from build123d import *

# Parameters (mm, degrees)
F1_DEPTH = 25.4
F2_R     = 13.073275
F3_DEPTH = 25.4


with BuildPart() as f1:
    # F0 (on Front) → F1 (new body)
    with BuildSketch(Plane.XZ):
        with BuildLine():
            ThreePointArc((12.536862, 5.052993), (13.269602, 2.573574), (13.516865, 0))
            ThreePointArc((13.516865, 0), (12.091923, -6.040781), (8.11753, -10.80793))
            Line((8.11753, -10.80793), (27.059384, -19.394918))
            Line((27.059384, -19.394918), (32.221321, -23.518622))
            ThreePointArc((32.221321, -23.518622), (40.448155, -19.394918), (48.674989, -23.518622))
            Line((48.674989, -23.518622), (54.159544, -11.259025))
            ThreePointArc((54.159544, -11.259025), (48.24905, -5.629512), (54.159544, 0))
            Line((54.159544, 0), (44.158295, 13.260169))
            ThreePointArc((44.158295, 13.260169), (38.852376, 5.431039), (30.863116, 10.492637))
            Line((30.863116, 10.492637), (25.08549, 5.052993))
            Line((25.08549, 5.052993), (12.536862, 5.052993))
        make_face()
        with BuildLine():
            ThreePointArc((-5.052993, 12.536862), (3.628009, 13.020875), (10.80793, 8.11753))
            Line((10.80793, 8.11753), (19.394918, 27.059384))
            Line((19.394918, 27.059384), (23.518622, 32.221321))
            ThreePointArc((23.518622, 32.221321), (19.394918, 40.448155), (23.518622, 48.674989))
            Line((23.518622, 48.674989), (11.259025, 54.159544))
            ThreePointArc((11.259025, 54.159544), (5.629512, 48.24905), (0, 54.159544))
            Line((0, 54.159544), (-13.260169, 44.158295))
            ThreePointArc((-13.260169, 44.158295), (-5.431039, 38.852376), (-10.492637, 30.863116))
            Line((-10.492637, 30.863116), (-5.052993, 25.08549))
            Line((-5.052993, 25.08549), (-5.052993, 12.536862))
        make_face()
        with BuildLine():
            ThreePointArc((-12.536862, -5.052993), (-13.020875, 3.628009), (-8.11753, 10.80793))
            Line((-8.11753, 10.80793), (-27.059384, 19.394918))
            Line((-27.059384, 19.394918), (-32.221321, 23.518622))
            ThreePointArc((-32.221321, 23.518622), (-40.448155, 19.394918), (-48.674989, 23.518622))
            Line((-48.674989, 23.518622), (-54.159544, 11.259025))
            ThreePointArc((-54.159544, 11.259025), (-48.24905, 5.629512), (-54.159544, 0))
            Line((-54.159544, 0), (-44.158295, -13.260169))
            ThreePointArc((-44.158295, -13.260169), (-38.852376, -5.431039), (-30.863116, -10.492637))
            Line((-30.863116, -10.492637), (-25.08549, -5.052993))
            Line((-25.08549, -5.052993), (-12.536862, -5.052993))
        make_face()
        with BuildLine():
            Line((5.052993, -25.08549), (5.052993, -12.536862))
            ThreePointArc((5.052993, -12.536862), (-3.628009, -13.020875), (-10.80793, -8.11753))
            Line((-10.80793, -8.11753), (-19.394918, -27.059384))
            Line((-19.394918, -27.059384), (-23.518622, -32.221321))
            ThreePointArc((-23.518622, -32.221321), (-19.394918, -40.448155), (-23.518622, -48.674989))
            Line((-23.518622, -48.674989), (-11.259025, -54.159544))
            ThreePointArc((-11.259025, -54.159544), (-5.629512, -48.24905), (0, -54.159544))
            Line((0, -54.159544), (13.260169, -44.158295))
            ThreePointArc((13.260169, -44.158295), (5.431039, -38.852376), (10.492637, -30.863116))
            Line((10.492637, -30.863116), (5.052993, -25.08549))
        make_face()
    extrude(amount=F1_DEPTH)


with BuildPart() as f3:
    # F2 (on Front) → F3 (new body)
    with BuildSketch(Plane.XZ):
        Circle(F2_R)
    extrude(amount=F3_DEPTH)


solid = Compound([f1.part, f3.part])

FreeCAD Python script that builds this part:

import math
import FreeCAD as App
import Part
import Sketcher
Q = App.Units.Quantity

doc = App.newDocument("Part")
body = doc.addObject("PartDesign::Body", "Body")
body.AllowCompound = True

# Sketch on XZ plane
sketch1 = body.newObject("Sketcher::SketchObject", "Sketch")
sketch1.AttachmentSupport = (doc.getObject("XZ_Plane"), [""])
sketch1.MapMode = "FlatFace"
sketch1.addGeometry([
    Part.ArcOfCircle(Part.Circle(App.Vector(-0.000046, -0.000008, 0), App.Vector(0, 0, 1), 13.516911), math.radians(0.000034), math.radians(21.951901)),  # 0
    Part.ArcOfCircle(Part.Circle(App.Vector(-0.000002, 0.000001, 0), App.Vector(0, 0, 1), 13.516867), math.radians(-53.090821), math.radians(-0.000002)),  # 1
    Part.LineSegment(App.Vector(8.11753, -10.80793, 0), App.Vector(27.059384, -19.394918, 0)),  # 2
    Part.LineSegment(App.Vector(27.059384, -19.394918, 0), App.Vector(32.221321, -23.518622, 0)),  # 3
    Part.ArcOfCircle(Part.Circle(App.Vector(40.448155, -29.663081, 0), App.Vector(0, 0, 1), 10.268163), math.radians(36.755325), math.radians(143.244675)),  # 4
    Part.LineSegment(App.Vector(48.674989, -23.518622, 0), App.Vector(54.159544, -11.259025, 0)),  # 5
    Part.ArcOfCircle(Part.Circle(App.Vector(53.885241, -5.629512, 0), App.Vector(0, 0, 1), 5.636191), math.radians(87.210422), math.radians(272.789578)),  # 6
    Part.LineSegment(App.Vector(54.159544, 0, 0), App.Vector(44.158295, 13.260169, 0)),  # 7
    Part.ArcOfCircle(Part.Circle(App.Vector(37.46795, 12.081801, 0), App.Vector(0, 0, 1), 6.793325), math.radians(-166.47143), math.radians(9.989033)),  # 8
    Part.LineSegment(App.Vector(30.863116, 10.492637, 0), App.Vector(25.08549, 5.052993, 0)),  # 9
    Part.LineSegment(App.Vector(25.08549, 5.052993, 0), App.Vector(12.536862, 5.052993, 0)),  # 10
    Part.ArcOfCircle(Part.Circle(App.Vector(-0.000001, -0.000002, 0), App.Vector(0, 0, 1), 13.516867), math.radians(36.909179), math.radians(111.951936)),  # 11
    Part.LineSegment(App.Vector(10.80793, 8.11753, 0), App.Vector(19.394918, 27.059384, 0)),  # 12
    Part.LineSegment(App.Vector(19.394918, 27.059384, 0), App.Vector(23.518622, 32.221321, 0)),  # 13
    Part.ArcOfCircle(Part.Circle(App.Vector(29.663081, 40.448155, 0), App.Vector(0, 0, 1), 10.268163), math.radians(126.755325), math.radians(233.244675)),  # 14
    Part.LineSegment(App.Vector(23.518622, 48.674989, 0), App.Vector(11.259025, 54.159544, 0)),  # 15
    Part.ArcOfCircle(Part.Circle(App.Vector(5.629512, 53.885241, 0), App.Vector(0, 0, 1), 5.636191), math.radians(177.210422), math.radians(362.789578)),  # 16
    Part.LineSegment(App.Vector(0, 54.159544, 0), App.Vector(-13.260169, 44.158295, 0)),  # 17
    Part.ArcOfCircle(Part.Circle(App.Vector(-12.081801, 37.46795, 0), App.Vector(0, 0, 1), 6.793325), math.radians(-76.47143), math.radians(99.989033)),  # 18
    Part.LineSegment(App.Vector(-10.492637, 30.863116, 0), App.Vector(-5.052993, 25.08549, 0)),  # 19
    Part.LineSegment(App.Vector(-5.052993, 25.08549, 0), App.Vector(-5.052993, 12.536862, 0)),  # 20
    Part.ArcOfCircle(Part.Circle(App.Vector(0.000002, -0.000001, 0), App.Vector(0, 0, 1), 13.516867), math.radians(126.909179), math.radians(201.951936)),  # 21
    Part.LineSegment(App.Vector(-8.11753, 10.80793, 0), App.Vector(-27.059384, 19.394918, 0)),  # 22
    Part.LineSegment(App.Vector(-27.059384, 19.394918, 0), App.Vector(-32.221321, 23.518622, 0)),  # 23
    Part.ArcOfCircle(Part.Circle(App.Vector(-40.448155, 29.663081, 0), App.Vector(0, 0, 1), 10.268163), math.radians(-143.244675), math.radians(-36.755325)),  # 24
    Part.LineSegment(App.Vector(-48.674989, 23.518622, 0), App.Vector(-54.159544, 11.259025, 0)),  # 25
    Part.ArcOfCircle(Part.Circle(App.Vector(-53.885241, 5.629512, 0), App.Vector(0, 0, 1), 5.636191), math.radians(-92.789578), math.radians(92.789578)),  # 26
    Part.LineSegment(App.Vector(-54.159544, 0, 0), App.Vector(-44.158295, -13.260169, 0)),  # 27
    Part.ArcOfCircle(Part.Circle(App.Vector(-37.46795, -12.081801, 0), App.Vector(0, 0, 1), 6.793325), math.radians(13.52857), math.radians(189.989033)),  # 28
    Part.LineSegment(App.Vector(-30.863116, -10.492637, 0), App.Vector(-25.08549, -5.052993, 0)),  # 29
    Part.LineSegment(App.Vector(-25.08549, -5.052993, 0), App.Vector(-12.536862, -5.052993, 0)),  # 30
    Part.LineSegment(App.Vector(5.052993, -25.08549, 0), App.Vector(5.052993, -12.536862, 0)),  # 31
    Part.ArcOfCircle(Part.Circle(App.Vector(0.000001, 0.000002, 0), App.Vector(0, 0, 1), 13.516867), math.radians(-143.090821), math.radians(-68.048064)),  # 32
    Part.LineSegment(App.Vector(-10.80793, -8.11753, 0), App.Vector(-19.394918, -27.059384, 0)),  # 33
    Part.LineSegment(App.Vector(-19.394918, -27.059384, 0), App.Vector(-23.518622, -32.221321, 0)),  # 34
    Part.ArcOfCircle(Part.Circle(App.Vector(-29.663081, -40.448155, 0), App.Vector(0, 0, 1), 10.268163), math.radians(-53.244675), math.radians(53.244675)),  # 35
    Part.LineSegment(App.Vector(-23.518622, -48.674989, 0), App.Vector(-11.259025, -54.159544, 0)),  # 36
    Part.ArcOfCircle(Part.Circle(App.Vector(-5.629512, -53.885241, 0), App.Vector(0, 0, 1), 5.636191), math.radians(-2.789578), math.radians(182.789578)),  # 37
    Part.LineSegment(App.Vector(0, -54.159544, 0), App.Vector(13.260169, -44.158295, 0)),  # 38
    Part.ArcOfCircle(Part.Circle(App.Vector(12.081801, -37.46795, 0), App.Vector(0, 0, 1), 6.793325), math.radians(103.52857), math.radians(279.989033)),  # 39
    Part.LineSegment(App.Vector(10.492637, -30.863116, 0), App.Vector(5.052993, -25.08549, 0)),  # 40
], False)
sketch1.addConstraint([
    Sketcher.Constraint("Coincident", 0, 1, 1, 2),
    Sketcher.Constraint("Coincident", 1, 1, 2, 1),
    Sketcher.Constraint("Coincident", 2, 2, 3, 1),
    Sketcher.Constraint("Coincident", 3, 2, 4, 2),
    Sketcher.Constraint("Coincident", 4, 1, 5, 1),
    Sketcher.Constraint("Coincident", 5, 2, 6, 2),
    Sketcher.Constraint("Coincident", 6, 1, 7, 1),
    Sketcher.Constraint("Coincident", 7, 2, 8, 2),
    Sketcher.Constraint("Coincident", 8, 1, 9, 1),
    Sketcher.Constraint("Coincident", 9, 2, 10, 1),
    Sketcher.Constraint("Coincident", 10, 2, 0, 2),
    Sketcher.Constraint("Coincident", 11, 1, 12, 1),
    Sketcher.Constraint("Coincident", 12, 2, 13, 1),
    Sketcher.Constraint("Coincident", 13, 2, 14, 2),
    Sketcher.Constraint("Coincident", 14, 1, 15, 1),
    Sketcher.Constraint("Coincident", 15, 2, 16, 2),
    Sketcher.Constraint("Coincident", 16, 1, 17, 1),
    Sketcher.Constraint("Coincident", 17, 2, 18, 2),
    Sketcher.Constraint("Coincident", 18, 1, 19, 1),
    Sketcher.Constraint("Coincident", 19, 2, 20, 1),
    Sketcher.Constraint("Coincident", 20, 2, 11, 2),
    Sketcher.Constraint("Coincident", 21, 1, 22, 1),
    Sketcher.Constraint("Coincident", 22, 2, 23, 1),
    Sketcher.Constraint("Coincident", 23, 2, 24, 2),
    Sketcher.Constraint("Coincident", 24, 1, 25, 1),
    Sketcher.Constraint("Coincident", 25, 2, 26, 2),
    Sketcher.Constraint("Coincident", 26, 1, 27, 1),
    Sketcher.Constraint("Coincident", 27, 2, 28, 2),
    Sketcher.Constraint("Coincident", 28, 1, 29, 1),
    Sketcher.Constraint("Coincident", 29, 2, 30, 1),
    Sketcher.Constraint("Coincident", 30, 2, 21, 2),
    Sketcher.Constraint("Coincident", 31, 2, 32, 2),
    Sketcher.Constraint("Coincident", 32, 1, 33, 1),
    Sketcher.Constraint("Coincident", 33, 2, 34, 1),
    Sketcher.Constraint("Coincident", 34, 2, 35, 2),
    Sketcher.Constraint("Coincident", 35, 1, 36, 1),
    Sketcher.Constraint("Coincident", 36, 2, 37, 2),
    Sketcher.Constraint("Coincident", 37, 1, 38, 1),
    Sketcher.Constraint("Coincident", 38, 2, 39, 2),
    Sketcher.Constraint("Coincident", 39, 1, 40, 1),
    Sketcher.Constraint("Coincident", 40, 2, 31, 1),
    Sketcher.Constraint("Horizontal", 10),
    Sketcher.Constraint("Vertical", 20),
    Sketcher.Constraint("Horizontal", 30),
    Sketcher.Constraint("Vertical", 31),
    Sketcher.Constraint("Coincident", 1, 3, -1, 1),
    Sketcher.Constraint("Coincident", 11, 3, -1, 1),
    Sketcher.Constraint("Coincident", 21, 3, -1, 1),
    Sketcher.Constraint("Coincident", 32, 3, -1, 1),
    Sketcher.Constraint("PointOnObject", 0, 1, -1),
    Sketcher.Constraint("PointOnObject", 6, 1, -1),
    Sketcher.Constraint("PointOnObject", 16, 1, -2),
    Sketcher.Constraint("PointOnObject", 26, 1, -1),
    Sketcher.Constraint("PointOnObject", 37, 1, -2),
    Sketcher.Constraint("Radius", 0, Q("13.516911 mm")),
    Sketcher.Constraint("Radius", 6, Q("5.636191 mm")),
    Sketcher.Constraint("Radius", 16, Q("5.636191 mm")),
    Sketcher.Constraint("Radius", 26, Q("5.636191 mm")),
    Sketcher.Constraint("Radius", 37, Q("5.636191 mm")),
    Sketcher.Constraint("Radius", 1, Q("13.516867 mm")),
    Sketcher.Constraint("Radius", 4, Q("10.268163 mm")),
    Sketcher.Constraint("Radius", 8, Q("6.793325 mm")),
    Sketcher.Constraint("Radius", 11, Q("13.516867 mm")),
    Sketcher.Constraint("Radius", 14, Q("10.268163 mm")),
    Sketcher.Constraint("Radius", 18, Q("6.793325 mm")),
    Sketcher.Constraint("Radius", 21, Q("13.516867 mm")),
    Sketcher.Constraint("Radius", 24, Q("10.268163 mm")),
    Sketcher.Constraint("Radius", 28, Q("6.793325 mm")),
    Sketcher.Constraint("Radius", 32, Q("13.516867 mm")),
    Sketcher.Constraint("Radius", 35, Q("10.268163 mm")),
    Sketcher.Constraint("Radius", 39, Q("6.793325 mm")),
    Sketcher.Constraint("DistanceX", 10, 2, 10, 1, Q("12.548628 mm")),
    Sketcher.Constraint("DistanceX", 30, 1, 30, 2, Q("12.548628 mm")),
    Sketcher.Constraint("DistanceY", 20, 2, 20, 1, Q("12.548628 mm")),
    Sketcher.Constraint("DistanceY", 31, 1, 31, 2, Q("12.548628 mm")),
    Sketcher.Constraint("DistanceY", -1, 1, 8, 3, Q("12.081801 mm")),
    Sketcher.Constraint("DistanceX", 18, 3, -1, 1, Q("12.081801 mm")),
    Sketcher.Constraint("DistanceY", 28, 3, -1, 1, Q("12.081801 mm")),
    Sketcher.Constraint("DistanceX", -1, 1, 39, 3, Q("12.081801 mm")),
    Sketcher.Constraint("DistanceX", 0, 3, 4, 3, Q("40.448201 mm")),
    Sketcher.Constraint("Distance", 2, Q("20.79736 mm")),
    Sketcher.Constraint("Distance", 5, Q("13.43049 mm")),
    Sketcher.Constraint("Distance", 12, Q("20.79736 mm")),
    Sketcher.Constraint("Distance", 15, Q("13.43049 mm")),
    Sketcher.Constraint("Distance", 22, Q("20.79736 mm")),
    Sketcher.Constraint("Distance", 25, Q("13.43049 mm")),
    Sketcher.Constraint("Distance", 33, Q("20.79736 mm")),
    Sketcher.Constraint("Distance", 36, Q("13.43049 mm")),
    Sketcher.Constraint("DistanceY", 4, 3, -1, 1, Q("29.663081 mm")),
    Sketcher.Constraint("DistanceX", -1, 1, 6, 3, Q("53.885241 mm")),
    Sketcher.Constraint("DistanceX", -1, 1, 8, 3, Q("37.46795 mm")),
    Sketcher.Constraint("DistanceX", -1, 1, 14, 3, Q("29.663081 mm")),
    Sketcher.Constraint("DistanceY", -1, 1, 16, 3, Q("53.885241 mm")),
    Sketcher.Constraint("DistanceY", -1, 1, 18, 3, Q("37.46795 mm")),
    Sketcher.Constraint("DistanceY", -1, 1, 24, 3, Q("29.663081 mm")),
    Sketcher.Constraint("DistanceX", 26, 3, -1, 1, Q("53.885241 mm")),
    Sketcher.Constraint("DistanceX", 28, 3, -1, 1, Q("37.46795 mm")),
    Sketcher.Constraint("DistanceX", 35, 3, -1, 1, Q("29.663081 mm")),
    Sketcher.Constraint("DistanceY", 37, 3, -1, 1, Q("53.885241 mm")),
    Sketcher.Constraint("DistanceY", 39, 3, -1, 1, Q("37.46795 mm")),
    Sketcher.Constraint("DistanceX", -1, 1, 1, 1, Q("8.11753 mm")),
    Sketcher.Constraint("DistanceY", 2, 2, -1, 1, Q("19.394918 mm")),
    Sketcher.Constraint("DistanceX", -1, 1, 3, 2, Q("32.221321 mm")),
    Sketcher.Constraint("DistanceX", -1, 1, 4, 1, Q("48.674989 mm")),
    Sketcher.Constraint("DistanceY", -1, 1, 7, 2, Q("13.260169 mm")),
    Sketcher.Constraint("DistanceX", -1, 1, 9, 2, Q("25.08549 mm")),
    Sketcher.Constraint("DistanceX", -1, 1, 11, 1, Q("10.80793 mm")),
    Sketcher.Constraint("DistanceX", -1, 1, 12, 2, Q("19.394918 mm")),
    Sketcher.Constraint("DistanceY", -1, 1, 13, 2, Q("32.221321 mm")),
    Sketcher.Constraint("DistanceX", -1, 1, 14, 1, Q("23.518622 mm")),
    Sketcher.Constraint("DistanceY", -1, 1, 14, 1, Q("48.674989 mm")),
    Sketcher.Constraint("DistanceX", 17, 2, -1, 1, Q("13.260169 mm")),
    Sketcher.Constraint("DistanceY", -1, 1, 19, 2, Q("25.08549 mm")),
    Sketcher.Constraint("DistanceX", 21, 1, -1, 1, Q("8.11753 mm")),
    Sketcher.Constraint("DistanceY", -1, 1, 22, 2, Q("19.394918 mm")),
    Sketcher.Constraint("DistanceX", 23, 2, -1, 1, Q("32.221321 mm")),
    Sketcher.Constraint("DistanceX", 24, 1, -1, 1, Q("48.674989 mm")),
    Sketcher.Constraint("DistanceY", -1, 1, 24, 1, Q("23.518622 mm")),
    Sketcher.Constraint("DistanceY", 27, 2, -1, 1, Q("13.260169 mm")),
    Sketcher.Constraint("DistanceX", 29, 2, -1, 1, Q("25.08549 mm")),
    Sketcher.Constraint("DistanceY", 31, 2, -1, 1, Q("12.536862 mm")),
    Sketcher.Constraint("DistanceX", 32, 1, -1, 1, Q("10.80793 mm")),
    Sketcher.Constraint("DistanceX", 33, 2, -1, 1, Q("19.394918 mm")),
    Sketcher.Constraint("DistanceY", 34, 2, -1, 1, Q("32.221321 mm")),
    Sketcher.Constraint("DistanceX", 35, 1, -1, 1, Q("23.518622 mm")),
    Sketcher.Constraint("DistanceY", 35, 1, -1, 1, Q("48.674989 mm")),
    Sketcher.Constraint("DistanceX", -1, 1, 38, 2, Q("13.260169 mm")),
    Sketcher.Constraint("DistanceY", 4, 3, 6, 3, Q("24.033569 mm")),
    Sketcher.Constraint("DistanceY", 0, 3, 8, 3, Q("12.081809 mm")),
    Sketcher.Constraint("DistanceX", 16, 3, 14, 3, Q("24.033569 mm")),
    Sketcher.Constraint("DistanceY", 26, 3, 24, 3, Q("24.033569 mm")),
    Sketcher.Constraint("DistanceX", 35, 3, 37, 3, Q("24.033569 mm")),
    Sketcher.Constraint("DistanceX", 8, 1, 7, 2, Q("13.295179 mm")),
    Sketcher.Constraint("DistanceY", 18, 1, 17, 2, Q("13.295179 mm")),
    Sketcher.Constraint("DistanceX", 27, 2, 28, 1, Q("13.295179 mm")),
    Sketcher.Constraint("DistanceY", 38, 2, 39, 1, Q("13.295179 mm")),
])
pad1 = body.newObject("PartDesign::Pad", "Pad")
pad1.Profile = sketch1
pad1.Length = Q("1 in")
body2 = doc.addObject("PartDesign::Body", "Body001")

# Sketch on XZ plane
sketch2 = body2.newObject("Sketcher::SketchObject", "Sketch001")
sketch2.AttachmentSupport = (doc.getObject("XZ_Plane001"), [""])
sketch2.MapMode = "FlatFace"
sketch2.addGeometry(Part.Circle(App.Vector(0, 0, 0), App.Vector(0, 0, 1), 13.073275), False)
sketch2.addConstraint([
    Sketcher.Constraint("Coincident", 0, 3, -1, 1),
    Sketcher.Constraint("Diameter", 0, Q("26.14655 mm")),
])
pad2 = body2.newObject("PartDesign::Pad", "Pad001")
pad2.Profile = sketch2
pad2.Length = Q("1 in")

doc.recompute()
